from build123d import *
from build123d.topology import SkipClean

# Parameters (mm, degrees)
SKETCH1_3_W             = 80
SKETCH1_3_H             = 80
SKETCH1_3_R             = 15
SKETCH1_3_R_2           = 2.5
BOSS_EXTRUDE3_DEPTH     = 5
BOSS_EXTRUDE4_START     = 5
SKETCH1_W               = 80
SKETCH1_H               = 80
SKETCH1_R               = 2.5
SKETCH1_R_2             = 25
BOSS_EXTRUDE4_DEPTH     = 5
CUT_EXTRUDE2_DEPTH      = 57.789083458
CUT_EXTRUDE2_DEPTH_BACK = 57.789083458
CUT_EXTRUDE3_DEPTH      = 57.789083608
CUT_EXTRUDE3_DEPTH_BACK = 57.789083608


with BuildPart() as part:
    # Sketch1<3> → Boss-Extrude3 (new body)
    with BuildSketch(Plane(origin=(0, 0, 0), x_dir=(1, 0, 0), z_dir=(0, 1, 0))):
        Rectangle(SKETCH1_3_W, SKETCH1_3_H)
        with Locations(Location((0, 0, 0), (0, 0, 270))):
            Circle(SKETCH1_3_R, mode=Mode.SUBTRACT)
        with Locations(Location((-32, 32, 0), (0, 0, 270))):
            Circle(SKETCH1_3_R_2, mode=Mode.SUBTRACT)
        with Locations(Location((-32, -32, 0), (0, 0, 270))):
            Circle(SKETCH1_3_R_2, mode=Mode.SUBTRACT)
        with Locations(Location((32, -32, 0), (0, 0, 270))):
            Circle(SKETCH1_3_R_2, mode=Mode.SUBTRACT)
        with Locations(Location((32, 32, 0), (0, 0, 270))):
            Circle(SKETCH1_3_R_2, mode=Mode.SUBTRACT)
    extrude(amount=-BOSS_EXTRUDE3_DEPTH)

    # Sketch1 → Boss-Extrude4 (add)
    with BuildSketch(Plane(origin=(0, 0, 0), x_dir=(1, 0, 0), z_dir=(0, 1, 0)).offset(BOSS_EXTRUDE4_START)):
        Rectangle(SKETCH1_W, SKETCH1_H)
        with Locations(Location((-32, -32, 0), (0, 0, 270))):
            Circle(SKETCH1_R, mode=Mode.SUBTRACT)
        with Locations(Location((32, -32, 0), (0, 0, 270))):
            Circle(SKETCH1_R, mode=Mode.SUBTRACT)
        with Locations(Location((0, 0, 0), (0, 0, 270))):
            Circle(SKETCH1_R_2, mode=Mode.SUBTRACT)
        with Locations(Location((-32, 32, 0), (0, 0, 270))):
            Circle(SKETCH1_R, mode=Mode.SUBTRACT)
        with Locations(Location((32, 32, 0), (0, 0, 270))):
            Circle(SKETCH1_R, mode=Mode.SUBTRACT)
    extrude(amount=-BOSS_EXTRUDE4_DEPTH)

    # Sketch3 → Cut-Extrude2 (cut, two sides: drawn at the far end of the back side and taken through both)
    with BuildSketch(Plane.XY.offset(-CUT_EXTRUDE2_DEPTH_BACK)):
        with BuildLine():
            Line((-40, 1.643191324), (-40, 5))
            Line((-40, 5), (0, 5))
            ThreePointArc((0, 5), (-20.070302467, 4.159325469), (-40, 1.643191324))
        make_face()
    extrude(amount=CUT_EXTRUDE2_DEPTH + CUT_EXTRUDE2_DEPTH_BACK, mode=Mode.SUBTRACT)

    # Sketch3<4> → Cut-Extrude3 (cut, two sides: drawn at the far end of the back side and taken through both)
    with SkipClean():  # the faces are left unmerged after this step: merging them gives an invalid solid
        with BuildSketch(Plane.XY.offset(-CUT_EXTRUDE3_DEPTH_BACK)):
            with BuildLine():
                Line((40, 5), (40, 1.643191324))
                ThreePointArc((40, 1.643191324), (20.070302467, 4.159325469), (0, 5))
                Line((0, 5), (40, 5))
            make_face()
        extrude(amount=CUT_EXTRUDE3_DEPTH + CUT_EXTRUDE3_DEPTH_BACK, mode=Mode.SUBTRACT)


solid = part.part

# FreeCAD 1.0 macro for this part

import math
import FreeCAD as App
import Part
import Sketcher
Q = App.Units.Quantity


def add_polygon(sketch, points):
    """Adds a closed chain of lines whose ends are joined by coincident constraints."""
    first, n = sketch.GeometryCount, len(points)
    for a, b in zip(points, points[1:] + points[:1]):
        sketch.addGeometry(Part.LineSegment(App.Vector(*a, 0), App.Vector(*b, 0)), False)
    for i in range(n):
        sketch.addConstraint(Sketcher.Constraint("Coincident", first + i, 2, first + (i + 1) % n, 1))

doc = App.newDocument("Part")
body = doc.addObject("PartDesign::Body", "Body")

sketch1 = doc.addObject("Sketcher::SketchObject", "Sketch")
body.addObject(sketch1)
sketch1.AttachmentSupport = (doc.XZ_Plane, [""])
sketch1.MapMode = "FlatFace"
add_polygon(sketch1, [(-40, -40), (-40, 40), (40, 40), (40, -40)])
sketch1.addGeometry(Part.Circle(App.Vector(-32, 32, 0), App.Vector(0, 0, 1), 2.5), False)
sketch1.addGeometry(Part.Circle(App.Vector(32, 32, 0), App.Vector(0, 0, 1), 2.5), False)
sketch1.addGeometry(Part.Circle(App.Vector(-32, -32, 0), App.Vector(0, 0, 1), 2.5), False)
sketch1.addGeometry(Part.Circle(App.Vector(0, 0, 0), App.Vector(0, 0, 1), 15), False)
sketch1.addGeometry(Part.Circle(App.Vector(32, -32, 0), App.Vector(0, 0, 1), 2.5), False)
sketch1.addConstraint(Sketcher.Constraint("Vertical", 0))
sketch1.addConstraint(Sketcher.Constraint("Horizontal", 1))
sketch1.addConstraint(Sketcher.Constraint("Vertical", 2))
sketch1.addConstraint(Sketcher.Constraint("Horizontal", 3))
sketch1.addConstraint(Sketcher.Constraint("Coincident", 7, 3, -1, 1))
sketch1.addConstraint(Sketcher.Constraint("Equal", 4, 5))
sketch1.addConstraint(Sketcher.Constraint("Equal", 5, 6))
sketch1.addConstraint(Sketcher.Constraint("Equal", 6, 8))
sketch1.addConstraint(Sketcher.Constraint("Symmetric", 5, 3, 6, 3, -1, 1))
sketch1.addConstraint(Sketcher.Constraint("Symmetric", 4, 3, 8, 3, -1, 1))
sketch1.addConstraint(Sketcher.Constraint("Symmetric", 0, 2, 2, 2, -1, 1))
sketch1.addConstraint(Sketcher.Constraint("Symmetric", 4, 3, 5, 3, -2))
sketch1.addConstraint(Sketcher.Constraint("Equal", 3, 0))
sketch1.addConstraint(Sketcher.Constraint("Diameter", 4, Q("5 mm")))
sketch1.addConstraint(Sketcher.Constraint("Diameter", 7, Q("30 mm")))
sketch1.addConstraint(Sketcher.Constraint("DistanceX", 1, 1, 1, 2, Q("80 mm")))
sketch1.addConstraint(Sketcher.Constraint("DistanceX", 4, 3, -1, 1, Q("32 mm")))
sketch1.addConstraint(Sketcher.Constraint("DistanceY", -1, 1, 4, 3, Q("32 mm")))
pad1 = doc.addObject("PartDesign::Pad", "Pad")
body.addObject(pad1)
pad1.Profile = sketch1
pad1.Length = 5

sketch2 = doc.addObject("Sketcher::SketchObject", "Sketch001")
body.addObject(sketch2)
sketch2.AttachmentSupport = (doc.XZ_Plane, [""])
sketch2.MapMode = "FlatFace"
sketch2.AttachmentOffset = App.Placement(App.Vector(0, 0, -5), App.Rotation())
add_polygon(sketch2, [(-40, -40), (-40, 40), (40, 40), (40, -40)])
sketch2.addGeometry(Part.Circle(App.Vector(-32, 32, 0), App.Vector(0, 0, 1), 2.5), False)
sketch2.addGeometry(Part.Circle(App.Vector(32, 32, 0), App.Vector(0, 0, 1), 2.5), False)
sketch2.addGeometry(Part.Circle(App.Vector(-32, -32, 0), App.Vector(0, 0, 1), 2.5), False)
sketch2.addGeometry(Part.Circle(App.Vector(0, 0, 0), App.Vector(0, 0, 1), 25), False)
sketch2.addGeometry(Part.Circle(App.Vector(32, -32, 0), App.Vector(0, 0, 1), 2.5), False)
sketch2.addConstraint(Sketcher.Constraint("Vertical", 0))
sketch2.addConstraint(Sketcher.Constraint("Horizontal", 1))
sketch2.addConstraint(Sketcher.Constraint("Vertical", 2))
sketch2.addConstraint(Sketcher.Constraint("Horizontal", 3))
sketch2.addConstraint(Sketcher.Constraint("Coincident", 7, 3, -1, 1))
sketch2.addConstraint(Sketcher.Constraint("Equal", 4, 5))
sketch2.addConstraint(Sketcher.Constraint("Equal", 5, 6))
sketch2.addConstraint(Sketcher.Constraint("Equal", 6, 8))
sketch2.addConstraint(Sketcher.Constraint("Symmetric", 5, 3, 6, 3, -1, 1))
sketch2.addConstraint(Sketcher.Constraint("Symmetric", 4, 3, 8, 3, -1, 1))
sketch2.addConstraint(Sketcher.Constraint("Symmetric", 0, 2, 2, 2, -1, 1))
sketch2.addConstraint(Sketcher.Constraint("Symmetric", 4, 3, 5, 3, -2))
sketch2.addConstraint(Sketcher.Constraint("Equal", 3, 0))
sketch2.addConstraint(Sketcher.Constraint("Diameter", 4, Q("5 mm")))
sketch2.addConstraint(Sketcher.Constraint("Diameter", 7, Q("50 mm")))
sketch2.addConstraint(Sketcher.Constraint("DistanceX", 1, 1, 1, 2, Q("80 mm")))
sketch2.addConstraint(Sketcher.Constraint("DistanceX", 4, 3, -1, 1, Q("32 mm")))
sketch2.addConstraint(Sketcher.Constraint("DistanceY", -1, 1, 4, 3, Q("32 mm")))
pad2 = doc.addObject("PartDesign::Pad", "Pad001")
body.addObject(pad2)
pad2.Profile = sketch2
pad2.Length = 5

sketch3 = doc.addObject("Sketcher::SketchObject", "Sketch002")
body.addObject(sketch3)
sketch3.AttachmentSupport = (doc.XY_Plane, [""])
sketch3.MapMode = "FlatFace"
sketch3.addGeometry(Part.LineSegment(App.Vector(-40, 5, 0), App.Vector(-40, 1.6, 0)), False)
sketch3.addGeometry(Part.ArcOfCircle(Part.Circle(App.Vector(0, -235, 0), App.Vector(0, 0, 1), 240), math.radians(90), math.radians(99.59)), False)
sketch3.addGeometry(Part.LineSegment(App.Vector(0, 5, 0), App.Vector(-40, 5, 0)), False)
sketch3.addConstraint(Sketcher.Constraint("Coincident", 0, 2, 1, 2))
sketch3.addConstraint(Sketcher.Constraint("Tangent", 1, 1, 2, 1))
sketch3.addConstraint(Sketcher.Constraint("Coincident", 2, 2, 0, 1))
sketch3.addConstraint(Sketcher.Constraint("Vertical", 0))
sketch3.addConstraint(Sketcher.Constraint("Horizontal", 2))
sketch3.addConstraint(Sketcher.Constraint("PointOnObject", 1, 3, -2))
sketch3.addConstraint(Sketcher.Constraint("Radius", 1, Q("240 mm")))
sketch3.addConstraint(Sketcher.Constraint("DistanceX", 2, 2, 2, 1, Q("40 mm")))
sketch3.addConstraint(Sketcher.Constraint("DistanceY", 1, 3, -1, 1, Q("235 mm")))
pocket1 = doc.addObject("PartDesign::Pocket", "Pocket")
body.addObject(pocket1)
pocket1.Profile = sketch3
pocket1.Type = "ThroughAll"
pocket1.Midplane = True

sketch4 = doc.addObject("Sketcher::SketchObject", "Sketch003")
body.addObject(sketch4)
sketch4.AttachmentSupport = (doc.XY_Plane, [""])
sketch4.MapMode = "FlatFace"
sketch4.addGeometry(Part.LineSegment(App.Vector(40, 1.6, 0), App.Vector(40, 5, 0)), False)
sketch4.addGeometry(Part.LineSegment(App.Vector(40, 5, 0), App.Vector(0, 5, 0)), False)
sketch4.addGeometry(Part.ArcOfCircle(Part.Circle(App.Vector(0, -235, 0), App.Vector(0, 0, 1), 240), math.radians(80.41), math.radians(90)), False)
sketch4.addConstraint(Sketcher.Constraint("Coincident", 0, 2, 1, 1))
sketch4.addConstraint(Sketcher.Constraint("Tangent", 1, 2, 2, 2))
sketch4.addConstraint(Sketcher.Constraint("Coincident", 2, 1, 0, 1))
sketch4.addConstraint(Sketcher.Constraint("Vertical", 0))
sketch4.addConstraint(Sketcher.Constraint("Horizontal", 1))
sketch4.addConstraint(Sketcher.Constraint("PointOnObject", 2, 3, -2))
sketch4.addConstraint(Sketcher.Constraint("Radius", 2, Q("240 mm")))
sketch4.addConstraint(Sketcher.Constraint("DistanceX", 1, 2, 1, 1, Q("40 mm")))
sketch4.addConstraint(Sketcher.Constraint("DistanceY", 2, 3, -1, 1, Q("235 mm")))
pocket2 = doc.addObject("PartDesign::Pocket", "Pocket001")
body.addObject(pocket2)
pocket2.Profile = sketch4
pocket2.Type = "ThroughAll"
pocket2.Midplane = True

doc.recompute()
